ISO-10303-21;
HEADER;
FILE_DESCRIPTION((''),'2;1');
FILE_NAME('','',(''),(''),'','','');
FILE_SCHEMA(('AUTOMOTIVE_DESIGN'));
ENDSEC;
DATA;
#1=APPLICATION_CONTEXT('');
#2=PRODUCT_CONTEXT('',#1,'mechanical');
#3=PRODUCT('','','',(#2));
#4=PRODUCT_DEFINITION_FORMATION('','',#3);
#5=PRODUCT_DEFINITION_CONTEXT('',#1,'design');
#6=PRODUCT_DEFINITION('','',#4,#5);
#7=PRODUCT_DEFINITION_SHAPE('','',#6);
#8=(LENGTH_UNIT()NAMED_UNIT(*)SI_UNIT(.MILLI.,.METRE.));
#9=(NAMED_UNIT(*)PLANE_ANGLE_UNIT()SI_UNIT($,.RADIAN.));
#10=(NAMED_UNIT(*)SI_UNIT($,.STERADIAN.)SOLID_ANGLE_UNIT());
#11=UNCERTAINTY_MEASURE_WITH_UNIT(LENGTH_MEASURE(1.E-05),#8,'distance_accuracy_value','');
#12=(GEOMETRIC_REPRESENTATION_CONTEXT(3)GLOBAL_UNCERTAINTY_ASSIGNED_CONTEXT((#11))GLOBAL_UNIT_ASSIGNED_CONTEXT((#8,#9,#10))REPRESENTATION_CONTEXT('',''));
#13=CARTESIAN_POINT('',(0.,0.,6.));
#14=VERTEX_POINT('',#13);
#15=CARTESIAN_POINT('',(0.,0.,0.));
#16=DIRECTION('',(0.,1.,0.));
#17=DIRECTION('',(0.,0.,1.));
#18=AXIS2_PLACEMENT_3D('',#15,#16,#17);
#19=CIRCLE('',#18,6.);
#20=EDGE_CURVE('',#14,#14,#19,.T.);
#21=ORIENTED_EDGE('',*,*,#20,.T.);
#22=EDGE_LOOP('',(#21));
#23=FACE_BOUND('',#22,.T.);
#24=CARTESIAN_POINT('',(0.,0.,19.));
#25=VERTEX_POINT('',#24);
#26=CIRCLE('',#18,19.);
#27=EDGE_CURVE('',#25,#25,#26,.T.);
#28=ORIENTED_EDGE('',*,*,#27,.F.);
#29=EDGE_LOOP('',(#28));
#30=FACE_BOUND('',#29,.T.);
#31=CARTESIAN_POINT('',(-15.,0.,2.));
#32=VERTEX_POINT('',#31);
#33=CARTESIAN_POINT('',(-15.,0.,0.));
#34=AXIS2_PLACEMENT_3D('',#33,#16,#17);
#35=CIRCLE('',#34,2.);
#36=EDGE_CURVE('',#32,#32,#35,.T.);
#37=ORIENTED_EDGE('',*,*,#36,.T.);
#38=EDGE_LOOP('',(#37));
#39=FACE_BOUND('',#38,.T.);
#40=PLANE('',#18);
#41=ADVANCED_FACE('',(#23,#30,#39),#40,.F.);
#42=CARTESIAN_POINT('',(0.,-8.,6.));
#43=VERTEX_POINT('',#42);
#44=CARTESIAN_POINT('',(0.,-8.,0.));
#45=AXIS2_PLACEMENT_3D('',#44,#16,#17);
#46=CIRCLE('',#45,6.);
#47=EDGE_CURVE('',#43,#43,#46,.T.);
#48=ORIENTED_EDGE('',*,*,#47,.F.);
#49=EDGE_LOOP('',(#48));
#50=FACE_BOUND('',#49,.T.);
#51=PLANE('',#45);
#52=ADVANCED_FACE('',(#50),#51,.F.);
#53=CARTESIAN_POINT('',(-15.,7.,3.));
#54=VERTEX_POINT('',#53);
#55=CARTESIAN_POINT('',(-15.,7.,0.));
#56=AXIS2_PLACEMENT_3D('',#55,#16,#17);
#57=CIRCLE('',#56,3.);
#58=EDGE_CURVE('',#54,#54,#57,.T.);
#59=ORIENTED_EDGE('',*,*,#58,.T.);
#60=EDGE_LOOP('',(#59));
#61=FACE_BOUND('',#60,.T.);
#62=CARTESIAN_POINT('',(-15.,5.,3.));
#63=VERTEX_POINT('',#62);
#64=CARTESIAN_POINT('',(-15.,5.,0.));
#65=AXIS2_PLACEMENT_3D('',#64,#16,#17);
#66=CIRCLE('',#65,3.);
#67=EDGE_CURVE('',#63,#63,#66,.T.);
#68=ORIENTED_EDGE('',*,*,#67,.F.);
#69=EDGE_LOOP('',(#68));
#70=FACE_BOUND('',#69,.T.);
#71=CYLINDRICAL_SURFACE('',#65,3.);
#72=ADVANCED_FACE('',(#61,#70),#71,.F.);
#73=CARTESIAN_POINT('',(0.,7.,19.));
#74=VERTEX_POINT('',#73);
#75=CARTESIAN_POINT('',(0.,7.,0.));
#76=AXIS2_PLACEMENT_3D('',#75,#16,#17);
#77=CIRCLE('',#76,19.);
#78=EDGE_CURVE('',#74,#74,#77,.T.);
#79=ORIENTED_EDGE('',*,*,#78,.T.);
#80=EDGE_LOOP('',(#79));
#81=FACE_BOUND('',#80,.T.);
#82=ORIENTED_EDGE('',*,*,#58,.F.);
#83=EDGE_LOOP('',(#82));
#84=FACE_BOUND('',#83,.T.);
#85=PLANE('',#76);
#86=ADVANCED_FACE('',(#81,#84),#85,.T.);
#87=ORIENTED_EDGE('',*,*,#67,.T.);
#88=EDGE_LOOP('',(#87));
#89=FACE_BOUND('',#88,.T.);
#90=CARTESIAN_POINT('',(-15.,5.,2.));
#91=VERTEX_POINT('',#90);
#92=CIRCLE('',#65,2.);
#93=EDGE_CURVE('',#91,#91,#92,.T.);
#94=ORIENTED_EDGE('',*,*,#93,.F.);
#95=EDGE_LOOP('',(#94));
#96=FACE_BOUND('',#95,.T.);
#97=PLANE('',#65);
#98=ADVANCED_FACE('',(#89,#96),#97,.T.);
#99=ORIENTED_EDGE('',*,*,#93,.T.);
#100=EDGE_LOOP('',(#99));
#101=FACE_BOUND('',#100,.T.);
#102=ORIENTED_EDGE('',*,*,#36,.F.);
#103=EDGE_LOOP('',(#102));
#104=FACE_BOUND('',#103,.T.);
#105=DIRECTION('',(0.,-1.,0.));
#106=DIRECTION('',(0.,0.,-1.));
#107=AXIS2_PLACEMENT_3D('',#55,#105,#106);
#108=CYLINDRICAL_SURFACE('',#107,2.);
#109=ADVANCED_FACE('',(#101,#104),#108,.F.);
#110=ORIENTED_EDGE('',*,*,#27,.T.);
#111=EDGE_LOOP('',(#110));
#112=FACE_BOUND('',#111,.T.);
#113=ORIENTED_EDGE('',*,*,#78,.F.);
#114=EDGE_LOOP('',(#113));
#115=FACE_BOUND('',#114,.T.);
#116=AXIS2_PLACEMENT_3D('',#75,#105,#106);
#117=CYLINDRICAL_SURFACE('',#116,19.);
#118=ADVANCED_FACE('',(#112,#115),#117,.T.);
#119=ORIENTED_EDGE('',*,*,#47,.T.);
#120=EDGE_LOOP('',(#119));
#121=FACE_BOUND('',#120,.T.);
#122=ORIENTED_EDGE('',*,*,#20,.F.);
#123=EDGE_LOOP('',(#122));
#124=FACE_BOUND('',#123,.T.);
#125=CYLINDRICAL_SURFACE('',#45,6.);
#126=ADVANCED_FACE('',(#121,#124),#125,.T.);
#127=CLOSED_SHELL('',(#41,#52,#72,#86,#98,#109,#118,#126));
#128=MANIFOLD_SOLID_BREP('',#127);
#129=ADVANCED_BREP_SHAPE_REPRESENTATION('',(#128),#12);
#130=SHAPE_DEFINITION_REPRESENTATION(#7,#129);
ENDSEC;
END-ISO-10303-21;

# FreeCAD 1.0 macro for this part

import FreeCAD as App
import Part
import Sketcher
from FreeCAD import Vector
Q = App.Units.Quantity

doc = App.newDocument("Part")
body = doc.addObject("PartDesign::Body", "Body")

sketch1 = body.newObject("Sketcher::SketchObject", "Sketch")
sketch1.AttachmentSupport = (doc.getObject("XZ_Plane"), [""])
sketch1.MapMode = "FlatFace"
sketch1.addGeometry(Part.Circle(Vector(0, 0, 0), Vector(0, 0, 1), 19), False)
sketch1.addConstraint(Sketcher.Constraint("Coincident", 0, 3, -1, 1))
sketch1.addConstraint(Sketcher.Constraint("Diameter", 0, Q("38 mm")))
pad1 = body.newObject("PartDesign::Pad", "Pad")
pad1.Profile = sketch1
pad1.Length = 7
pad1.Reversed = True

sketch2 = body.newObject("Sketcher::SketchObject", "Sketch001")
sketch2.AttachmentSupport = (doc.getObject("XZ_Plane"), [""])
sketch2.MapMode = "FlatFace"
sketch2.addGeometry(Part.Circle(Vector(0, 0, 0), Vector(0, 0, 1), 6), False)
sketch2.addConstraint(Sketcher.Constraint("Coincident", 0, 3, -1, 1))
sketch2.addConstraint(Sketcher.Constraint("Diameter", 0, Q("12 mm")))
pad2 = body.newObject("PartDesign::Pad", "Pad001")
pad2.Profile = sketch2
pad2.Length = 8

sketch3 = body.newObject("Sketcher::SketchObject", "Sketch002")
sketch3.AttachmentSupport = (doc.getObject("XZ_Plane"), [""])
sketch3.MapMode = "FlatFace"
sketch3.addGeometry(Part.Circle(Vector(-15, 0, 0), Vector(0, 0, 1), 2), False)
sketch3.addConstraint(Sketcher.Constraint("PointOnObject", 0, 3, -1))
sketch3.addConstraint(Sketcher.Constraint("Diameter", 0, Q("4 mm")))
sketch3.addConstraint(Sketcher.Constraint("DistanceX", 0, 3, -1, 1, Q("15 mm")))
pocket1 = body.newObject("PartDesign::Pocket", "Pocket")
pocket1.Profile = sketch3
pocket1.Type = "ThroughAll"

sketch4 = body.newObject("Sketcher::SketchObject", "Sketch003")
sketch4.AttachmentSupport = (doc.getObject("XZ_Plane"), [""])
sketch4.MapMode = "FlatFace"
sketch4.AttachmentOffset = App.Placement(Vector(0, 0, -7), App.Rotation())
sketch4.addGeometry(Part.Circle(Vector(-15, 0, 0), Vector(0, 0, 1), 3), False)
sketch4.addConstraint(Sketcher.Constraint("PointOnObject", 0, 3, -1))
sketch4.addConstraint(Sketcher.Constraint("Diameter", 0, Q("6 mm")))
sketch4.addConstraint(Sketcher.Constraint("DistanceX", 0, 3, -1, 1, Q("15 mm")))
pocket2 = body.newObject("PartDesign::Pocket", "Pocket001")
pocket2.Profile = sketch4
pocket2.Length = 2
pocket2.Reversed = True

doc.recompute()
